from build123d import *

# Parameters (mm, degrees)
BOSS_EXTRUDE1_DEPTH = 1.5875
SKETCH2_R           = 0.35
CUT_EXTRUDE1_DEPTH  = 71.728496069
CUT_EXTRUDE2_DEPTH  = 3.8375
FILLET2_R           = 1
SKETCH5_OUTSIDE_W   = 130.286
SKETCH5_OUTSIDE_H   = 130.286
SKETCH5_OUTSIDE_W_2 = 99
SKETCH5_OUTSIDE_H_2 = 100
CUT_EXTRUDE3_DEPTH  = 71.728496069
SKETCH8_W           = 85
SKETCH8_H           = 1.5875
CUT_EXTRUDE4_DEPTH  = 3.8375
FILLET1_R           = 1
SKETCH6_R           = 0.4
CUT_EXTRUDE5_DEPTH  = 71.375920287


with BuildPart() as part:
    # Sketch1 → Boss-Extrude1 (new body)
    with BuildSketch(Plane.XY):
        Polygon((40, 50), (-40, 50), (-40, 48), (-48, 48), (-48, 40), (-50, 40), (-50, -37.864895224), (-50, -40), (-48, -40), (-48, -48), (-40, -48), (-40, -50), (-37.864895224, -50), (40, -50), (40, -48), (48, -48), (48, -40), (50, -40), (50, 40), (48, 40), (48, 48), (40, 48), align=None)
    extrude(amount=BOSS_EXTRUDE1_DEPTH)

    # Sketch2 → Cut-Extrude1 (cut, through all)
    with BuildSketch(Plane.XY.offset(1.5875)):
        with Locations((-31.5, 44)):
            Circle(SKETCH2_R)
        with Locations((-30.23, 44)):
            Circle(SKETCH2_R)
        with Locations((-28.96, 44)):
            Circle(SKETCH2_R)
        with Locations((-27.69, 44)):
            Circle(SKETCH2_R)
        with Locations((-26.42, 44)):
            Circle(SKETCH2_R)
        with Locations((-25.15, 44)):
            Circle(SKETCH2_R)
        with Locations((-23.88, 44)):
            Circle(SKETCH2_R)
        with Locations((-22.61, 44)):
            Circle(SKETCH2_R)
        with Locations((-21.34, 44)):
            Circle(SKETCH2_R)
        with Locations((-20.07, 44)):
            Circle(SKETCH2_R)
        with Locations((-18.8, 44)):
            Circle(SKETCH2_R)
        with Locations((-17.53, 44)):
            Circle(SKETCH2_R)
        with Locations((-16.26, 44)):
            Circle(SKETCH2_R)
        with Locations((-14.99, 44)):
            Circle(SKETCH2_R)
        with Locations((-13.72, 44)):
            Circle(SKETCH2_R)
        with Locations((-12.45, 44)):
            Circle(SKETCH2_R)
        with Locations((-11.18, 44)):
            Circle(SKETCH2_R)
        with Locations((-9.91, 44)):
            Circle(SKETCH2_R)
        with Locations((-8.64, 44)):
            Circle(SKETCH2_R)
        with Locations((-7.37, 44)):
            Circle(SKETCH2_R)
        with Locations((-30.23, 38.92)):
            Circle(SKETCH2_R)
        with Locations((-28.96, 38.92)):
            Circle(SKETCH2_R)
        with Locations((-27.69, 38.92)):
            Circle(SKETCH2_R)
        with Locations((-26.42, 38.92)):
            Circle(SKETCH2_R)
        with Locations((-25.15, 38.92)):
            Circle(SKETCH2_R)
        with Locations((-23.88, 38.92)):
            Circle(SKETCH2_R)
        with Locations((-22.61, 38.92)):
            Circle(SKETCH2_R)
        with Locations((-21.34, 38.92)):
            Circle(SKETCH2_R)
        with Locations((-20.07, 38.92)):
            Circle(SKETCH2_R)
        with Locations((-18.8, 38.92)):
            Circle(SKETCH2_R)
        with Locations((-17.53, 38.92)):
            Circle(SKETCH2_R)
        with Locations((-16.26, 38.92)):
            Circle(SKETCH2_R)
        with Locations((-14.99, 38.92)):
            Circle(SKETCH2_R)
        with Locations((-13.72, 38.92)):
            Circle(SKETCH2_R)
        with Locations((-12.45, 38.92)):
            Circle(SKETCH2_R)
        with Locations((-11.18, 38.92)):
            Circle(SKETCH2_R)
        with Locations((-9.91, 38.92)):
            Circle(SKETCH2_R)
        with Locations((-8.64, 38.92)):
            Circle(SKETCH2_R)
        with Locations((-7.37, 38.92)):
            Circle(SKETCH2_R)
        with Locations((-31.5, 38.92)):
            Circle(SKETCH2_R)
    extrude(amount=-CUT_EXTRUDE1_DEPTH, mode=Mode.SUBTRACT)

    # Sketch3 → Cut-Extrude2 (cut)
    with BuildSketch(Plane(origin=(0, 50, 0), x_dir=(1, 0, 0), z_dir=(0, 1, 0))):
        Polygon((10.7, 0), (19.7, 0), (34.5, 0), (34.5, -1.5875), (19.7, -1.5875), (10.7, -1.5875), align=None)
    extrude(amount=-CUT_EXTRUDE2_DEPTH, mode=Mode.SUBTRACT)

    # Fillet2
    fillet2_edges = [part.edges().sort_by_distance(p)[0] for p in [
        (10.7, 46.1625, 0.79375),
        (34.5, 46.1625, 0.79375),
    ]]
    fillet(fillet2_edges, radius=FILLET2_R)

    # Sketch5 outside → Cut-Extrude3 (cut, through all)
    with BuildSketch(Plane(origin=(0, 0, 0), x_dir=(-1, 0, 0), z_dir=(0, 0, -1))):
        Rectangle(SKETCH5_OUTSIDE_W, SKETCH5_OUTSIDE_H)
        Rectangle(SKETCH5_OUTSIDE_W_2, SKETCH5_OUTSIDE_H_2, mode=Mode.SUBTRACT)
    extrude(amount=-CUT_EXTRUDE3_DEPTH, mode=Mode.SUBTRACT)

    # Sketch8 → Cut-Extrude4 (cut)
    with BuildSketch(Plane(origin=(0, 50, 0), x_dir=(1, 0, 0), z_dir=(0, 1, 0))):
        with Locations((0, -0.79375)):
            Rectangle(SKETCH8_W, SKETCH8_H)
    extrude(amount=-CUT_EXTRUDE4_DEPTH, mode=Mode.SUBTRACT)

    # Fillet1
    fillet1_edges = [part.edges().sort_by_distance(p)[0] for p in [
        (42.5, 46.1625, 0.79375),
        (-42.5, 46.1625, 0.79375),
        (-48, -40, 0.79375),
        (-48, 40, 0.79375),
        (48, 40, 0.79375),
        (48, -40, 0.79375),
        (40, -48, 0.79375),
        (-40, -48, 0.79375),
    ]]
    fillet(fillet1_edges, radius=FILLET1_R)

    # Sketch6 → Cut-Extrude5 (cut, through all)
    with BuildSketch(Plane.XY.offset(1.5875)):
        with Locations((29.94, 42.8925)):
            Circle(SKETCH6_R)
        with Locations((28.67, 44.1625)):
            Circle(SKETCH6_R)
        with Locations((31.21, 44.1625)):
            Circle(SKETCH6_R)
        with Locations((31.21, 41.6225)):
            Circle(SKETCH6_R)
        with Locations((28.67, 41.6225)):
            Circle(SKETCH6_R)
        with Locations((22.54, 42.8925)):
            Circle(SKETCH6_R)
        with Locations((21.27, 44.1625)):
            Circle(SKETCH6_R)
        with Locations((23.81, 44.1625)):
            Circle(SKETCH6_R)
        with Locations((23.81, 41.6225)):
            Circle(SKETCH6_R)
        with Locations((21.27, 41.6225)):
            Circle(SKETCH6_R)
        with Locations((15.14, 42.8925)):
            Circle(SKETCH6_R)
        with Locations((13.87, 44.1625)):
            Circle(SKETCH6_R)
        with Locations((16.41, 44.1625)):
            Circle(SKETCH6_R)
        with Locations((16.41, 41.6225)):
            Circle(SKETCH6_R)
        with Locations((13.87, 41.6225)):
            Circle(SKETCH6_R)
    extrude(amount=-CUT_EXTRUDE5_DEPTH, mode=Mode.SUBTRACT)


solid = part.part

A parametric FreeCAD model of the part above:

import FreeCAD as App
import Part
import Sketcher
from FreeCAD import Vector
Q = App.Units.Quantity


def edges_at(feature, points):
    """Names of the edges that pass closest to the given points."""
    edges = feature.Shape.Edges
    near = lambda p: min(range(len(edges)), key=lambda i: edges[i].distToShape(Part.Vertex(*p))[0])
    return sorted({f"Edge{near(p) + 1}" for p in points})

doc = App.newDocument("Part")
params = doc.addObject("Spreadsheet::Sheet", "Params")
for row, (alias, value) in enumerate([
    ("sketch1_width", "80 mm"),
    ("sketch1_width2", "8 mm"),
    ("sketch1_width3", "2 mm"),
    ("pad1_length", "1.5875 mm"),
    ("sketch2_diameter", "0.7 mm"),
    ("sketch3_width", "23.8 mm"),
    ("pocket2_length", "3.8375 mm"),
    ("fillet_radius", "1 mm"),
    ("sketch4_width", "99 mm"),
    ("sketch4_height", "100 mm"),
    ("sketch5_width", "85 mm"),
    ("pocket4_length", "3.8375 mm"),
    ("fillet2_radius", "1 mm"),
    ("sketch6_diameter", "0.8 mm"),
], start=1):
    params.set(f"A{row}", alias)
    params.set(f"B{row}", "=" + value)
    params.setAlias(f"B{row}", alias)

body = doc.addObject("PartDesign::Body", "Body")

# Sketch on XY plane
sketch1 = doc.addObject("Sketcher::SketchObject", "Sketch")
body.addObject(sketch1)
sketch1.AttachmentSupport = (doc.XY_Plane, [""])
sketch1.MapMode = "FlatFace"
sketch1.addGeometry(Part.LineSegment(Vector(40, 50, 0), Vector(-40, 50, 0)), False)
sketch1.addGeometry(Part.LineSegment(Vector(-40, 50, 0), Vector(-40, 48, 0)), False)
sketch1.addGeometry(Part.LineSegment(Vector(-40, 48, 0), Vector(-48, 48, 0)), False)
sketch1.addGeometry(Part.LineSegment(Vector(-48, 48, 0), Vector(-48, 40, 0)), False)
sketch1.addGeometry(Part.LineSegment(Vector(-48, 40, 0), Vector(-50, 40, 0)), False)
sketch1.addGeometry(Part.LineSegment(Vector(-50, 40, 0), Vector(-50, -40, 0)), False)
sketch1.addGeometry(Part.LineSegment(Vector(-50, -40, 0), Vector(-48, -40, 0)), False)
sketch1.addGeometry(Part.LineSegment(Vector(-48, -40, 0), Vector(-48, -48, 0)), False)
sketch1.addGeometry(Part.LineSegment(Vector(-48, -48, 0), Vector(-40, -48, 0)), False)
sketch1.addGeometry(Part.LineSegment(Vector(-40, -48, 0), Vector(-40, -50, 0)), False)
sketch1.addGeometry(Part.LineSegment(Vector(-40, -50, 0), Vector(40, -50, 0)), False)
sketch1.addGeometry(Part.LineSegment(Vector(40, -50, 0), Vector(40, -48, 0)), False)
sketch1.addGeometry(Part.LineSegment(Vector(40, -48, 0), Vector(48, -48, 0)), False)
sketch1.addGeometry(Part.LineSegment(Vector(48, -48, 0), Vector(48, -40, 0)), False)
sketch1.addGeometry(Part.LineSegment(Vector(48, -40, 0), Vector(50, -40, 0)), False)
sketch1.addGeometry(Part.LineSegment(Vector(50, -40, 0), Vector(50, 40, 0)), False)
sketch1.addGeometry(Part.LineSegment(Vector(50, 40, 0), Vector(48, 40, 0)), False)
sketch1.addGeometry(Part.LineSegment(Vector(48, 40, 0), Vector(48, 48, 0)), False)
sketch1.addGeometry(Part.LineSegment(Vector(48, 48, 0), Vector(40, 48, 0)), False)
sketch1.addGeometry(Part.LineSegment(Vector(40, 48, 0), Vector(40, 50, 0)), False)
sketch1.addConstraint(Sketcher.Constraint("Coincident", 0, 2, 1, 1))
sketch1.addConstraint(Sketcher.Constraint("Coincident", 1, 2, 2, 1))
sketch1.addConstraint(Sketcher.Constraint("Coincident", 2, 2, 3, 1))
sketch1.addConstraint(Sketcher.Constraint("Coincident", 3, 2, 4, 1))
sketch1.addConstraint(Sketcher.Constraint("Coincident", 4, 2, 5, 1))
sketch1.addConstraint(Sketcher.Constraint("Coincident", 5, 2, 6, 1))
sketch1.addConstraint(Sketcher.Constraint("Coincident", 6, 2, 7, 1))
sketch1.addConstraint(Sketcher.Constraint("Coincident", 7, 2, 8, 1))
sketch1.addConstraint(Sketcher.Constraint("Coincident", 8, 2, 9, 1))
sketch1.addConstraint(Sketcher.Constraint("Coincident", 9, 2, 10, 1))
sketch1.addConstraint(Sketcher.Constraint("Coincident", 10, 2, 11, 1))
sketch1.addConstraint(Sketcher.Constraint("Coincident", 11, 2, 12, 1))
sketch1.addConstraint(Sketcher.Constraint("Coincident", 12, 2, 13, 1))
sketch1.addConstraint(Sketcher.Constraint("Coincident", 13, 2, 14, 1))
sketch1.addConstraint(Sketcher.Constraint("Coincident", 14, 2, 15, 1))
sketch1.addConstraint(Sketcher.Constraint("Coincident", 15, 2, 16, 1))
sketch1.addConstraint(Sketcher.Constraint("Coincident", 16, 2, 17, 1))
sketch1.addConstraint(Sketcher.Constraint("Coincident", 17, 2, 18, 1))
sketch1.addConstraint(Sketcher.Constraint("Coincident", 18, 2, 19, 1))
sketch1.addConstraint(Sketcher.Constraint("Coincident", 19, 2, 0, 1))
sketch1.addConstraint(Sketcher.Constraint("Horizontal", 0))
sketch1.addConstraint(Sketcher.Constraint("Vertical", 1))
sketch1.addConstraint(Sketcher.Constraint("Horizontal", 2))
sketch1.addConstraint(Sketcher.Constraint("Vertical", 3))
sketch1.addConstraint(Sketcher.Constraint("Horizontal", 4))
sketch1.addConstraint(Sketcher.Constraint("Vertical", 5))
sketch1.addConstraint(Sketcher.Constraint("Horizontal", 6))
sketch1.addConstraint(Sketcher.Constraint("Vertical", 7))
sketch1.addConstraint(Sketcher.Constraint("Horizontal", 8))
sketch1.addConstraint(Sketcher.Constraint("Vertical", 9))
sketch1.addConstraint(Sketcher.Constraint("Horizontal", 10))
sketch1.addConstraint(Sketcher.Constraint("Vertical", 11))
sketch1.addConstraint(Sketcher.Constraint("Horizontal", 12))
sketch1.addConstraint(Sketcher.Constraint("Vertical", 13))
sketch1.addConstraint(Sketcher.Constraint("Horizontal", 14))
sketch1.addConstraint(Sketcher.Constraint("Vertical", 15))
sketch1.addConstraint(Sketcher.Constraint("Horizontal", 16))
sketch1.addConstraint(Sketcher.Constraint("Vertical", 17))
sketch1.addConstraint(Sketcher.Constraint("Horizontal", 18))
sketch1.addConstraint(Sketcher.Constraint("Vertical", 19))
sketch1.addConstraint(Sketcher.Constraint("Symmetric", 0, 2, 10, 2, -1, 1))
sketch1.addConstraint(Sketcher.Constraint("Symmetric", 2, 2, 12, 2, -1, 1))
sketch1.addConstraint(Sketcher.Constraint("Symmetric", 4, 2, 14, 2, -1, 1))
sketch1.addConstraint(Sketcher.Constraint("Symmetric", 6, 2, 16, 2, -1, 1))
sketch1.addConstraint(Sketcher.Constraint("Symmetric", 8, 2, 18, 2, -1, 1))
sketch1.addConstraint(Sketcher.Constraint("Symmetric", 8, 2, 11, 2, -2))
sketch1.addConstraint(Sketcher.Constraint("Symmetric", 6, 2, 13, 2, -2))
sketch1.addConstraint(Sketcher.Constraint("Equal", 16, 1))
sketch1.addConstraint(Sketcher.Constraint("Equal", 18, 3))
sketch1.addConstraint(Sketcher.Constraint("Equal", 10, 5))
sketch1.addConstraint(Sketcher.Constraint("DistanceX", 0, 2, 0, 1, Q("80 mm")))
sketch1.addConstraint(Sketcher.Constraint("DistanceX", 2, 2, 2, 1, Q("8 mm")))
sketch1.addConstraint(Sketcher.Constraint("DistanceX", 4, 2, 4, 1, Q("2 mm")))
sketch1.setExpression("Constraints[50]", "Params.sketch1_width")
sketch1.setExpression("Constraints[51]", "Params.sketch1_width2")
sketch1.setExpression("Constraints[52]", "Params.sketch1_width3")
pad1 = doc.addObject("PartDesign::Pad", "Pad")
body.addObject(pad1)
pad1.Profile = sketch1
pad1.setExpression("Length", "Params.pad1_length")

# Sketch on XY plane
sketch2 = doc.addObject("Sketcher::SketchObject", "Sketch001")
body.addObject(sketch2)
sketch2.AttachmentSupport = (doc.XY_Plane, [""])
sketch2.MapMode = "FlatFace"
sketch2.AttachmentOffset = App.Placement(Vector(0, 0, 1.5875), App.Rotation())
sketch2.addGeometry(Part.Circle(Vector(-31.5, 44, 0), Vector(0, 0, 1), 0.35), False)
sketch2.addGeometry(Part.Circle(Vector(-30.23, 44, 0), Vector(0, 0, 1), 0.35), False)
sketch2.addGeometry(Part.Circle(Vector(-28.96, 44, 0), Vector(0, 0, 1), 0.35), False)
sketch2.addGeometry(Part.Circle(Vector(-27.69, 44, 0), Vector(0, 0, 1), 0.35), False)
sketch2.addGeometry(Part.Circle(Vector(-26.42, 44, 0), Vector(0, 0, 1), 0.35), False)
sketch2.addGeometry(Part.Circle(Vector(-25.15, 44, 0), Vector(0, 0, 1), 0.35), False)
sketch2.addGeometry(Part.Circle(Vector(-23.88, 44, 0), Vector(0, 0, 1), 0.35), False)
sketch2.addGeometry(Part.Circle(Vector(-22.61, 44, 0), Vector(0, 0, 1), 0.35), False)
sketch2.addGeometry(Part.Circle(Vector(-21.34, 44, 0), Vector(0, 0, 1), 0.35), False)
sketch2.addGeometry(Part.Circle(Vector(-20.07, 44, 0), Vector(0, 0, 1), 0.35), False)
sketch2.addGeometry(Part.Circle(Vector(-18.8, 44, 0), Vector(0, 0, 1), 0.35), False)
sketch2.addGeometry(Part.Circle(Vector(-17.53, 44, 0), Vector(0, 0, 1), 0.35), False)
sketch2.addGeometry(Part.Circle(Vector(-16.26, 44, 0), Vector(0, 0, 1), 0.35), False)
sketch2.addGeometry(Part.Circle(Vector(-14.99, 44, 0), Vector(0, 0, 1), 0.35), False)
sketch2.addGeometry(Part.Circle(Vector(-13.72, 44, 0), Vector(0, 0, 1), 0.35), False)
sketch2.addGeometry(Part.Circle(Vector(-12.45, 44, 0), Vector(0, 0, 1), 0.35), False)
sketch2.addGeometry(Part.Circle(Vector(-11.18, 44, 0), Vector(0, 0, 1), 0.35), False)
sketch2.addGeometry(Part.Circle(Vector(-9.91, 44, 0), Vector(0, 0, 1), 0.35), False)
sketch2.addGeometry(Part.Circle(Vector(-8.64, 44, 0), Vector(0, 0, 1), 0.35), False)
sketch2.addGeometry(Part.Circle(Vector(-7.37, 44, 0), Vector(0, 0, 1), 0.35), False)
sketch2.addGeometry(Part.Circle(Vector(-30.23, 38.92, 0), Vector(0, 0, 1), 0.35), False)
sketch2.addGeometry(Part.Circle(Vector(-28.96, 38.92, 0), Vector(0, 0, 1), 0.35), False)
sketch2.addGeometry(Part.Circle(Vector(-27.69, 38.92, 0), Vector(0, 0, 1), 0.35), False)
sketch2.addGeometry(Part.Circle(Vector(-26.42, 38.92, 0), Vector(0, 0, 1), 0.35), False)
sketch2.addGeometry(Part.Circle(Vector(-25.15, 38.92, 0), Vector(0, 0, 1), 0.35), False)
sketch2.addGeometry(Part.Circle(Vector(-23.88, 38.92, 0), Vector(0, 0, 1), 0.35), False)
sketch2.addGeometry(Part.Circle(Vector(-22.61, 38.92, 0), Vector(0, 0, 1), 0.35), False)
sketch2.addGeometry(Part.Circle(Vector(-21.34, 38.92, 0), Vector(0, 0, 1), 0.35), False)
sketch2.addGeometry(Part.Circle(Vector(-20.07, 38.92, 0), Vector(0, 0, 1), 0.35), False)
sketch2.addGeometry(Part.Circle(Vector(-18.8, 38.92, 0), Vector(0, 0, 1), 0.35), False)
sketch2.addGeometry(Part.Circle(Vector(-17.53, 38.92, 0), Vector(0, 0, 1), 0.35), False)
sketch2.addGeometry(Part.Circle(Vector(-16.26, 38.92, 0), Vector(0, 0, 1), 0.35), False)
sketch2.addGeometry(Part.Circle(Vector(-14.99, 38.92, 0), Vector(0, 0, 1), 0.35), False)
sketch2.addGeometry(Part.Circle(Vector(-13.72, 38.92, 0), Vector(0, 0, 1), 0.35), False)
sketch2.addGeometry(Part.Circle(Vector(-12.45, 38.92, 0), Vector(0, 0, 1), 0.35), False)
sketch2.addGeometry(Part.Circle(Vector(-11.18, 38.92, 0), Vector(0, 0, 1), 0.35), False)
sketch2.addGeometry(Part.Circle(Vector(-9.91, 38.92, 0), Vector(0, 0, 1), 0.35), False)
sketch2.addGeometry(Part.Circle(Vector(-8.64, 38.92, 0), Vector(0, 0, 1), 0.35), False)
sketch2.addGeometry(Part.Circle(Vector(-7.37, 38.92, 0), Vector(0, 0, 1), 0.35), False)
sketch2.addGeometry(Part.Circle(Vector(-31.5, 38.92, 0), Vector(0, 0, 1), 0.35), False)
sketch2.addConstraint(Sketcher.Constraint("Equal", 0, 1))
sketch2.addConstraint(Sketcher.Constraint("Equal", 1, 2))
sketch2.addConstraint(Sketcher.Constraint("Equal", 2, 3))
sketch2.addConstraint(Sketcher.Constraint("Equal", 3, 4))
sketch2.addConstraint(Sketcher.Constraint("Equal", 4, 5))
sketch2.addConstraint(Sketcher.Constraint("Equal", 5, 6))
sketch2.addConstraint(Sketcher.Constraint("Equal", 6, 7))
sketch2.addConstraint(Sketcher.Constraint("Equal", 7, 8))
sketch2.addConstraint(Sketcher.Constraint("Equal", 8, 9))
sketch2.addConstraint(Sketcher.Constraint("Equal", 9, 10))
sketch2.addConstraint(Sketcher.Constraint("Equal", 10, 11))
sketch2.addConstraint(Sketcher.Constraint("Equal", 11, 12))
sketch2.addConstraint(Sketcher.Constraint("Equal", 12, 13))
sketch2.addConstraint(Sketcher.Constraint("Equal", 13, 14))
sketch2.addConstraint(Sketcher.Constraint("Equal", 14, 15))
sketch2.addConstraint(Sketcher.Constraint("Equal", 15, 16))
sketch2.addConstraint(Sketcher.Constraint("Equal", 16, 17))
sketch2.addConstraint(Sketcher.Constraint("Equal", 17, 18))
sketch2.addConstraint(Sketcher.Constraint("Equal", 18, 19))
sketch2.addConstraint(Sketcher.Constraint("Equal", 19, 20))
sketch2.addConstraint(Sketcher.Constraint("Equal", 20, 21))
sketch2.addConstraint(Sketcher.Constraint("Equal", 21, 22))
sketch2.addConstraint(Sketcher.Constraint("Equal", 22, 23))
sketch2.addConstraint(Sketcher.Constraint("Equal", 23, 24))
sketch2.addConstraint(Sketcher.Constraint("Equal", 24, 25))
sketch2.addConstraint(Sketcher.Constraint("Equal", 25, 26))
sketch2.addConstraint(Sketcher.Constraint("Equal", 26, 27))
sketch2.addConstraint(Sketcher.Constraint("Equal", 27, 28))
sketch2.addConstraint(Sketcher.Constraint("Equal", 28, 29))
sketch2.addConstraint(Sketcher.Constraint("Equal", 29, 30))
sketch2.addConstraint(Sketcher.Constraint("Equal", 30, 31))
sketch2.addConstraint(Sketcher.Constraint("Equal", 31, 32))
sketch2.addConstraint(Sketcher.Constraint("Equal", 32, 33))
sketch2.addConstraint(Sketcher.Constraint("Equal", 33, 34))
sketch2.addConstraint(Sketcher.Constraint("Equal", 34, 35))
sketch2.addConstraint(Sketcher.Constraint("Equal", 35, 36))
sketch2.addConstraint(Sketcher.Constraint("Equal", 36, 37))
sketch2.addConstraint(Sketcher.Constraint("Equal", 37, 38))
sketch2.addConstraint(Sketcher.Constraint("Equal", 38, 39))
sketch2.addConstraint(Sketcher.Constraint("Horizontal", 0, 3, 1, 3))
sketch2.addConstraint(Sketcher.Constraint("Horizontal", 1, 3, 2, 3))
sketch2.addConstraint(Sketcher.Constraint("Horizontal", 2, 3, 3, 3))
sketch2.addConstraint(Sketcher.Constraint("Horizontal", 3, 3, 4, 3))
sketch2.addConstraint(Sketcher.Constraint("Horizontal", 4, 3, 5, 3))
sketch2.addConstraint(Sketcher.Constraint("Horizontal", 5, 3, 6, 3))
sketch2.addConstraint(Sketcher.Constraint("Horizontal", 6, 3, 7, 3))
sketch2.addConstraint(Sketcher.Constraint("Horizontal", 7, 3, 8, 3))
sketch2.addConstraint(Sketcher.Constraint("Horizontal", 8, 3, 9, 3))
sketch2.addConstraint(Sketcher.Constraint("Horizontal", 9, 3, 10, 3))
sketch2.addConstraint(Sketcher.Constraint("Horizontal", 10, 3, 11, 3))
sketch2.addConstraint(Sketcher.Constraint("Horizontal", 11, 3, 12, 3))
sketch2.addConstraint(Sketcher.Constraint("Horizontal", 12, 3, 13, 3))
sketch2.addConstraint(Sketcher.Constraint("Horizontal", 13, 3, 14, 3))
sketch2.addConstraint(Sketcher.Constraint("Horizontal", 14, 3, 15, 3))
sketch2.addConstraint(Sketcher.Constraint("Horizontal", 15, 3, 16, 3))
sketch2.addConstraint(Sketcher.Constraint("Horizontal", 16, 3, 17, 3))
sketch2.addConstraint(Sketcher.Constraint("Horizontal", 17, 3, 18, 3))
sketch2.addConstraint(Sketcher.Constraint("Horizontal", 18, 3, 19, 3))
sketch2.addConstraint(Sketcher.Constraint("Horizontal", 20, 3, 21, 3))
sketch2.addConstraint(Sketcher.Constraint("Horizontal", 21, 3, 22, 3))
sketch2.addConstraint(Sketcher.Constraint("Horizontal", 22, 3, 23, 3))
sketch2.addConstraint(Sketcher.Constraint("Horizontal", 23, 3, 24, 3))
sketch2.addConstraint(Sketcher.Constraint("Horizontal", 24, 3, 25, 3))
sketch2.addConstraint(Sketcher.Constraint("Horizontal", 25, 3, 26, 3))
sketch2.addConstraint(Sketcher.Constraint("Horizontal", 26, 3, 27, 3))
sketch2.addConstraint(Sketcher.Constraint("Horizontal", 27, 3, 28, 3))
sketch2.addConstraint(Sketcher.Constraint("Horizontal", 28, 3, 29, 3))
sketch2.addConstraint(Sketcher.Constraint("Horizontal", 29, 3, 30, 3))
sketch2.addConstraint(Sketcher.Constraint("Horizontal", 30, 3, 31, 3))
sketch2.addConstraint(Sketcher.Constraint("Horizontal", 31, 3, 32, 3))
sketch2.addConstraint(Sketcher.Constraint("Horizontal", 32, 3, 33, 3))
sketch2.addConstraint(Sketcher.Constraint("Horizontal", 33, 3, 34, 3))
sketch2.addConstraint(Sketcher.Constraint("Horizontal", 34, 3, 35, 3))
sketch2.addConstraint(Sketcher.Constraint("Horizontal", 35, 3, 36, 3))
sketch2.addConstraint(Sketcher.Constraint("Horizontal", 36, 3, 37, 3))
sketch2.addConstraint(Sketcher.Constraint("Horizontal", 37, 3, 38, 3))
sketch2.addConstraint(Sketcher.Constraint("Horizontal", 38, 3, 39, 3))
sketch2.addConstraint(Sketcher.Constraint("Vertical", 1, 3, 20, 3))
sketch2.addConstraint(Sketcher.Constraint("Vertical", 2, 3, 21, 3))
sketch2.addConstraint(Sketcher.Constraint("Vertical", 3, 3, 22, 3))
sketch2.addConstraint(Sketcher.Constraint("Vertical", 4, 3, 23, 3))
sketch2.addConstraint(Sketcher.Constraint("Vertical", 5, 3, 24, 3))
sketch2.addConstraint(Sketcher.Constraint("Vertical", 6, 3, 25, 3))
sketch2.addConstraint(Sketcher.Constraint("Vertical", 7, 3, 26, 3))
sketch2.addConstraint(Sketcher.Constraint("Vertical", 8, 3, 27, 3))
sketch2.addConstraint(Sketcher.Constraint("Vertical", 9, 3, 28, 3))
sketch2.addConstraint(Sketcher.Constraint("Vertical", 10, 3, 29, 3))
sketch2.addConstraint(Sketcher.Constraint("Vertical", 11, 3, 30, 3))
sketch2.addConstraint(Sketcher.Constraint("Vertical", 12, 3, 31, 3))
sketch2.addConstraint(Sketcher.Constraint("Vertical", 13, 3, 32, 3))
sketch2.addConstraint(Sketcher.Constraint("Vertical", 14, 3, 33, 3))
sketch2.addConstraint(Sketcher.Constraint("Vertical", 15, 3, 34, 3))
sketch2.addConstraint(Sketcher.Constraint("Vertical", 16, 3, 35, 3))
sketch2.addConstraint(Sketcher.Constraint("Vertical", 17, 3, 36, 3))
sketch2.addConstraint(Sketcher.Constraint("Vertical", 18, 3, 37, 3))
sketch2.addConstraint(Sketcher.Constraint("Vertical", 19, 3, 38, 3))
sketch2.addConstraint(Sketcher.Constraint("Vertical", 0, 3, 39, 3))
sketch2.addConstraint(Sketcher.Constraint("Diameter", 0, Q("0.7 mm")))
sketch2.addConstraint(Sketcher.Constraint("DistanceY", -1, 1, 0, 3, Q("44 mm")))
sketch2.addConstraint(Sketcher.Constraint("DistanceX", 0, 3, -1, 1, Q("31.5 mm")))
sketch2.addConstraint(Sketcher.Constraint("DistanceX", 10, 3, -1, 1, Q("18.8 mm")))
sketch2.addConstraint(Sketcher.Constraint("DistanceX", 1, 3, -1, 1, Q("30.23 mm")))
sketch2.addConstraint(Sketcher.Constraint("DistanceX", 2, 3, -1, 1, Q("28.96 mm")))
sketch2.addConstraint(Sketcher.Constraint("DistanceX", 3, 3, -1, 1, Q("27.69 mm")))
sketch2.addConstraint(Sketcher.Constraint("DistanceX", 4, 3, -1, 1, Q("26.42 mm")))
sketch2.addConstraint(Sketcher.Constraint("DistanceX", 5, 3, -1, 1, Q("25.15 mm")))
sketch2.addConstraint(Sketcher.Constraint("DistanceX", 6, 3, -1, 1, Q("23.88 mm")))
sketch2.addConstraint(Sketcher.Constraint("DistanceX", 7, 3, -1, 1, Q("22.61 mm")))
sketch2.addConstraint(Sketcher.Constraint("DistanceX", 8, 3, -1, 1, Q("21.34 mm")))
sketch2.addConstraint(Sketcher.Constraint("DistanceX", 9, 3, -1, 1, Q("20.07 mm")))
sketch2.addConstraint(Sketcher.Constraint("DistanceX", 11, 3, -1, 1, Q("17.53 mm")))
sketch2.addConstraint(Sketcher.Constraint("DistanceX", 12, 3, -1, 1, Q("16.26 mm")))
sketch2.addConstraint(Sketcher.Constraint("DistanceX", 13, 3, -1, 1, Q("14.99 mm")))
sketch2.addConstraint(Sketcher.Constraint("DistanceX", 14, 3, -1, 1, Q("13.72 mm")))
sketch2.addConstraint(Sketcher.Constraint("DistanceX", 15, 3, -1, 1, Q("12.45 mm")))
sketch2.addConstraint(Sketcher.Constraint("DistanceX", 16, 3, -1, 1, Q("11.18 mm")))
sketch2.addConstraint(Sketcher.Constraint("DistanceX", 17, 3, -1, 1, Q("9.91 mm")))
sketch2.addConstraint(Sketcher.Constraint("DistanceX", 18, 3, -1, 1, Q("8.64 mm")))
sketch2.addConstraint(Sketcher.Constraint("DistanceX", 19, 3, -1, 1, Q("7.37 mm")))
sketch2.addConstraint(Sketcher.Constraint("DistanceY", -1, 1, 20, 3, Q("38.92 mm")))
sketch2.setExpression("Constraints[97]", "Params.sketch2_diameter")
pocket1 = doc.addObject("PartDesign::Pocket", "Pocket")
body.addObject(pocket1)
pocket1.Profile = sketch2
pocket1.Type = "ThroughAll"

# Sketch on XZ plane
sketch3 = doc.addObject("Sketcher::SketchObject", "Sketch002")
body.addObject(sketch3)
sketch3.AttachmentSupport = (doc.XZ_Plane, [""])
sketch3.MapMode = "FlatFace"
sketch3.AttachmentOffset = App.Placement(Vector(0, 0, -50), App.Rotation())
sketch3.addGeometry(Part.LineSegment(Vector(34.5, 0, 0), Vector(10.7, 0, 0)), False)
sketch3.addGeometry(Part.LineSegment(Vector(10.7, 0, 0), Vector(10.7, 1.5875, 0)), False)
sketch3.addGeometry(Part.LineSegment(Vector(10.7, 1.5875, 0), Vector(34.5, 1.5875, 0)), False)
sketch3.addGeometry(Part.LineSegment(Vector(34.5, 1.5875, 0), Vector(34.5, 0, 0)), False)
sketch3.addConstraint(Sketcher.Constraint("Coincident", 0, 2, 1, 1))
sketch3.addConstraint(Sketcher.Constraint("Coincident", 1, 2, 2, 1))
sketch3.addConstraint(Sketcher.Constraint("Coincident", 2, 2, 3, 1))
sketch3.addConstraint(Sketcher.Constraint("Coincident", 3, 2, 0, 1))
sketch3.addConstraint(Sketcher.Constraint("Horizontal", 0))
sketch3.addConstraint(Sketcher.Constraint("Vertical", 1))
sketch3.addConstraint(Sketcher.Constraint("Horizontal", 2))
sketch3.addConstraint(Sketcher.Constraint("Vertical", 3))
sketch3.addConstraint(Sketcher.Constraint("PointOnObject", 0, 2, -1))
sketch3.addConstraint(Sketcher.Constraint("DistanceX", 0, 2, 0, 1, Q("23.8 mm")))
sketch3.addConstraint(Sketcher.Constraint("DistanceX", -1, 1, 0, 2, Q("10.7 mm")))
sketch3.addConstraint(Sketcher.Constraint("DistanceY", 1, 1, 1, 2, Q("1.5875 mm")))
sketch3.setExpression("Constraints[9]", "Params.sketch3_width")
pocket2 = doc.addObject("PartDesign::Pocket", "Pocket001")
body.addObject(pocket2)
pocket2.Profile = sketch3
pocket2.setExpression("Length", "Params.pocket2_length")
pocket2.Reversed = True
doc.recompute()

fillet = doc.addObject("PartDesign::Fillet", "Fillet")
body.addObject(fillet)
fillet.Base = (pocket2, edges_at(pocket2, [(10.7, 46.163, 0.794), (34.5, 46.163, 0.794)]))
fillet.setExpression("Radius", "Params.fillet_radius")

# Sketch on XY plane
sketch4 = doc.addObject("Sketcher::SketchObject", "Sketch003")
body.addObject(sketch4)
sketch4.AttachmentSupport = (doc.XY_Plane, [""])
sketch4.MapMode = "FlatFace"
sketch4.addGeometry(Part.LineSegment(Vector(65.143, 65.143, 0), Vector(65.143, -65.143, 0)), False)
sketch4.addGeometry(Part.LineSegment(Vector(65.143, -65.143, 0), Vector(-65.143, -65.143, 0)), False)
sketch4.addGeometry(Part.LineSegment(Vector(-65.143, -65.143, 0), Vector(-65.143, 65.143, 0)), False)
sketch4.addGeometry(Part.LineSegment(Vector(-65.143, 65.143, 0), Vector(65.143, 65.143, 0)), False)
sketch4.addGeometry(Part.LineSegment(Vector(-49.5, -50, 0), Vector(49.5, -50, 0)), False)
sketch4.addGeometry(Part.LineSegment(Vector(49.5, -50, 0), Vector(49.5, 50, 0)), False)
sketch4.addGeometry(Part.LineSegment(Vector(49.5, 50, 0), Vector(-49.5, 50, 0)), False)
sketch4.addGeometry(Part.LineSegment(Vector(-49.5, 50, 0), Vector(-49.5, -50, 0)), False)
sketch4.addConstraint(Sketcher.Constraint("Coincident", 0, 2, 1, 1))
sketch4.addConstraint(Sketcher.Constraint("Coincident", 1, 2, 2, 1))
sketch4.addConstraint(Sketcher.Constraint("Coincident", 2, 2, 3, 1))
sketch4.addConstraint(Sketcher.Constraint("Coincident", 3, 2, 0, 1))
sketch4.addConstraint(Sketcher.Constraint("Coincident", 4, 2, 5, 1))
sketch4.addConstraint(Sketcher.Constraint("Coincident", 5, 2, 6, 1))
sketch4.addConstraint(Sketcher.Constraint("Coincident", 6, 2, 7, 1))
sketch4.addConstraint(Sketcher.Constraint("Coincident", 7, 2, 4, 1))
sketch4.addConstraint(Sketcher.Constraint("Vertical", 0))
sketch4.addConstraint(Sketcher.Constraint("Horizontal", 1))
sketch4.addConstraint(Sketcher.Constraint("Vertical", 2))
sketch4.addConstraint(Sketcher.Constraint("Horizontal", 3))
sketch4.addConstraint(Sketcher.Constraint("Horizontal", 4))
sketch4.addConstraint(Sketcher.Constraint("Vertical", 5))
sketch4.addConstraint(Sketcher.Constraint("Horizontal", 6))
sketch4.addConstraint(Sketcher.Constraint("Vertical", 7))
sketch4.addConstraint(Sketcher.Constraint("Symmetric", 0, 2, 2, 2, -1, 1))
sketch4.addConstraint(Sketcher.Constraint("Symmetric", 4, 2, 6, 2, -1, 1))
sketch4.addConstraint(Sketcher.Constraint("Equal", 3, 0))
sketch4.addConstraint(Sketcher.Constraint("DistanceX", 4, 1, 4, 2, Q("99 mm")))
sketch4.addConstraint(Sketcher.Constraint("DistanceY", 5, 1, 5, 2, Q("100 mm")))
sketch4.addConstraint(Sketcher.Constraint("DistanceX", 1, 2, 1, 1, Q("130.286 mm")))
sketch4.setExpression("Constraints[19]", "Params.sketch4_width")
sketch4.setExpression("Constraints[20]", "Params.sketch4_height")
pocket3 = doc.addObject("PartDesign::Pocket", "Pocket002")
body.addObject(pocket3)
pocket3.Profile = sketch4
pocket3.Type = "ThroughAll"
pocket3.Reversed = True

# Sketch on XZ plane
sketch5 = doc.addObject("Sketcher::SketchObject", "Sketch004")
body.addObject(sketch5)
sketch5.AttachmentSupport = (doc.XZ_Plane, [""])
sketch5.MapMode = "FlatFace"
sketch5.AttachmentOffset = App.Placement(Vector(0, 0, -50), App.Rotation())
sketch5.addGeometry(Part.LineSegment(Vector(-42.5, 0, 0), Vector(-42.5, 1.5875, 0)), False)
sketch5.addGeometry(Part.LineSegment(Vector(-42.5, 1.5875, 0), Vector(42.5, 1.5875, 0)), False)
sketch5.addGeometry(Part.LineSegment(Vector(42.5, 1.5875, 0), Vector(42.5, 0, 0)), False)
sketch5.addGeometry(Part.LineSegment(Vector(42.5, 0, 0), Vector(-42.5, 0, 0)), False)
sketch5.addConstraint(Sketcher.Constraint("Coincident", 0, 2, 1, 1))
sketch5.addConstraint(Sketcher.Constraint("Coincident", 1, 2, 2, 1))
sketch5.addConstraint(Sketcher.Constraint("Coincident", 2, 2, 3, 1))
sketch5.addConstraint(Sketcher.Constraint("Coincident", 3, 2, 0, 1))
sketch5.addConstraint(Sketcher.Constraint("Vertical", 0))
sketch5.addConstraint(Sketcher.Constraint("Horizontal", 1))
sketch5.addConstraint(Sketcher.Constraint("Vertical", 2))
sketch5.addConstraint(Sketcher.Constraint("Horizontal", 3))
sketch5.addConstraint(Sketcher.Constraint("Symmetric", 2, 2, 3, 2, -1, 1))
sketch5.addConstraint(Sketcher.Constraint("DistanceX", 1, 1, 1, 2, Q("85 mm")))
sketch5.addConstraint(Sketcher.Constraint("DistanceY", 0, 1, 0, 2, Q("1.5875 mm")))
sketch5.setExpression("Constraints[9]", "Params.sketch5_width")
pocket4 = doc.addObject("PartDesign::Pocket", "Pocket003")
body.addObject(pocket4)
pocket4.Profile = sketch5
pocket4.setExpression("Length", "Params.pocket4_length")
pocket4.Reversed = True
doc.recompute()

fillet2 = doc.addObject("PartDesign::Fillet", "Fillet001")
body.addObject(fillet2)
fillet2.Base = (pocket4, edges_at(pocket4, [
    (42.5, 46.163, 0.794),
    (-42.5, 46.163, 0.794),
    (-48, -40, 0.794),
    (-48, 40, 0.794),
    (48, 40, 0.794),
    (48, -40, 0.794),
    (40, -48, 0.794),
    (-40, -48, 0.794),
]))
fillet2.setExpression("Radius", "Params.fillet2_radius")

# Sketch on XY plane
sketch6 = doc.addObject("Sketcher::SketchObject", "Sketch005")
body.addObject(sketch6)
sketch6.AttachmentSupport = (doc.XY_Plane, [""])
sketch6.MapMode = "FlatFace"
sketch6.AttachmentOffset = App.Placement(Vector(0, 0, 1.5875), App.Rotation())
sketch6.addGeometry(Part.Circle(Vector(29.94, 42.8925, 0), Vector(0, 0, 1), 0.4), False)
sketch6.addGeometry(Part.Circle(Vector(28.67, 44.1625, 0), Vector(0, 0, 1), 0.4), False)
sketch6.addGeometry(Part.Circle(Vector(31.21, 44.1625, 0), Vector(0, 0, 1), 0.4), False)
sketch6.addGeometry(Part.Circle(Vector(31.21, 41.6225, 0), Vector(0, 0, 1), 0.4), False)
sketch6.addGeometry(Part.Circle(Vector(28.67, 41.6225, 0), Vector(0, 0, 1), 0.4), False)
sketch6.addGeometry(Part.Circle(Vector(22.54, 42.8925, 0), Vector(0, 0, 1), 0.4), False)
sketch6.addGeometry(Part.Circle(Vector(21.27, 44.1625, 0), Vector(0, 0, 1), 0.4), False)
sketch6.addGeometry(Part.Circle(Vector(23.81, 44.1625, 0), Vector(0, 0, 1), 0.4), False)
sketch6.addGeometry(Part.Circle(Vector(23.81, 41.6225, 0), Vector(0, 0, 1), 0.4), False)
sketch6.addGeometry(Part.Circle(Vector(21.27, 41.6225, 0), Vector(0, 0, 1), 0.4), False)
sketch6.addGeometry(Part.Circle(Vector(15.14, 42.8925, 0), Vector(0, 0, 1), 0.4), False)
sketch6.addGeometry(Part.Circle(Vector(13.87, 44.1625, 0), Vector(0, 0, 1), 0.4), False)
sketch6.addGeometry(Part.Circle(Vector(16.41, 44.1625, 0), Vector(0, 0, 1), 0.4), False)
sketch6.addGeometry(Part.Circle(Vector(16.41, 41.6225, 0), Vector(0, 0, 1), 0.4), False)
sketch6.addGeometry(Part.Circle(Vector(13.87, 41.6225, 0), Vector(0, 0, 1), 0.4), False)
sketch6.addConstraint(Sketcher.Constraint("Equal", 0, 1))
sketch6.addConstraint(Sketcher.Constraint("Equal", 1, 2))
sketch6.addConstraint(Sketcher.Constraint("Equal", 2, 3))
sketch6.addConstraint(Sketcher.Constraint("Equal", 3, 4))
sketch6.addConstraint(Sketcher.Constraint("Equal", 4, 5))
sketch6.addConstraint(Sketcher.Constraint("Equal", 5, 6))
sketch6.addConstraint(Sketcher.Constraint("Equal", 6, 7))
sketch6.addConstraint(Sketcher.Constraint("Equal", 7, 8))
sketch6.addConstraint(Sketcher.Constraint("Equal", 8, 9))
sketch6.addConstraint(Sketcher.Constraint("Equal", 9, 10))
sketch6.addConstraint(Sketcher.Constraint("Equal", 10, 11))
sketch6.addConstraint(Sketcher.Constraint("Equal", 11, 12))
sketch6.addConstraint(Sketcher.Constraint("Equal", 12, 13))
sketch6.addConstraint(Sketcher.Constraint("Equal", 13, 14))
sketch6.addConstraint(Sketcher.Constraint("Horizontal", 1, 3, 2, 3))
sketch6.addConstraint(Sketcher.Constraint("Horizontal", 3, 3, 4, 3))
sketch6.addConstraint(Sketcher.Constraint("Horizontal", 0, 3, 5, 3))
sketch6.addConstraint(Sketcher.Constraint("Horizontal", 2, 3, 6, 3))
sketch6.addConstraint(Sketcher.Constraint("Horizontal", 6, 3, 7, 3))
sketch6.addConstraint(Sketcher.Constraint("Horizontal", 4, 3, 8, 3))
sketch6.addConstraint(Sketcher.Constraint("Horizontal", 8, 3, 9, 3))
sketch6.addConstraint(Sketcher.Constraint("Horizontal", 5, 3, 10, 3))
sketch6.addConstraint(Sketcher.Constraint("Horizontal", 7, 3, 11, 3))
sketch6.addConstraint(Sketcher.Constraint("Horizontal", 11, 3, 12, 3))
sketch6.addConstraint(Sketcher.Constraint("Horizontal", 9, 3, 13, 3))
sketch6.addConstraint(Sketcher.Constraint("Horizontal", 13, 3, 14, 3))
sketch6.addConstraint(Sketcher.Constraint("Vertical", 2, 3, 3, 3))
sketch6.addConstraint(Sketcher.Constraint("Vertical", 1, 3, 4, 3))
sketch6.addConstraint(Sketcher.Constraint("Vertical", 7, 3, 8, 3))
sketch6.addConstraint(Sketcher.Constraint("Vertical", 6, 3, 9, 3))
sketch6.addConstraint(Sketcher.Constraint("Vertical", 12, 3, 13, 3))
sketch6.addConstraint(Sketcher.Constraint("Vertical", 11, 3, 14, 3))
sketch6.addConstraint(Sketcher.Constraint("Diameter", 0, Q("0.8 mm")))
sketch6.addConstraint(Sketcher.Constraint("DistanceX", 5, 3, 0, 3, Q("7.4 mm")))
sketch6.addConstraint(Sketcher.Constraint("DistanceX", 6, 3, 1, 3, Q("7.4 mm")))
sketch6.addConstraint(Sketcher.Constraint("DistanceX", 10, 3, 5, 3, Q("7.4 mm")))
sketch6.addConstraint(Sketcher.Constraint("DistanceX", 11, 3, 6, 3, Q("7.4 mm")))
sketch6.addConstraint(Sketcher.Constraint("DistanceX", -1, 1, 0, 3, Q("29.94 mm")))
sketch6.addConstraint(Sketcher.Constraint("DistanceX", -1, 1, 1, 3, Q("28.67 mm")))
sketch6.addConstraint(Sketcher.Constraint("DistanceX", -1, 1, 2, 3, Q("31.21 mm")))
sketch6.addConstraint(Sketcher.Constraint("DistanceX", -1, 1, 7, 3, Q("23.81 mm")))
sketch6.addConstraint(Sketcher.Constraint("DistanceX", -1, 1, 12, 3, Q("16.41 mm")))
sketch6.addConstraint(Sketcher.Constraint("DistanceY", 0, 3, 1, 3, Q("1.27 mm")))
sketch6.addConstraint(Sketcher.Constraint("DistanceY", 3, 3, 0, 3, Q("1.27 mm")))
sketch6.addConstraint(Sketcher.Constraint("DistanceY", -1, 1, 0, 3, Q("42.8925 mm")))
sketch6.setExpression("Constraints[32]", "Params.sketch6_diameter")
pocket5 = doc.addObject("PartDesign::Pocket", "Pocket004")
body.addObject(pocket5)
pocket5.Profile = sketch6
pocket5.Type = "ThroughAll"

doc.recompute()
